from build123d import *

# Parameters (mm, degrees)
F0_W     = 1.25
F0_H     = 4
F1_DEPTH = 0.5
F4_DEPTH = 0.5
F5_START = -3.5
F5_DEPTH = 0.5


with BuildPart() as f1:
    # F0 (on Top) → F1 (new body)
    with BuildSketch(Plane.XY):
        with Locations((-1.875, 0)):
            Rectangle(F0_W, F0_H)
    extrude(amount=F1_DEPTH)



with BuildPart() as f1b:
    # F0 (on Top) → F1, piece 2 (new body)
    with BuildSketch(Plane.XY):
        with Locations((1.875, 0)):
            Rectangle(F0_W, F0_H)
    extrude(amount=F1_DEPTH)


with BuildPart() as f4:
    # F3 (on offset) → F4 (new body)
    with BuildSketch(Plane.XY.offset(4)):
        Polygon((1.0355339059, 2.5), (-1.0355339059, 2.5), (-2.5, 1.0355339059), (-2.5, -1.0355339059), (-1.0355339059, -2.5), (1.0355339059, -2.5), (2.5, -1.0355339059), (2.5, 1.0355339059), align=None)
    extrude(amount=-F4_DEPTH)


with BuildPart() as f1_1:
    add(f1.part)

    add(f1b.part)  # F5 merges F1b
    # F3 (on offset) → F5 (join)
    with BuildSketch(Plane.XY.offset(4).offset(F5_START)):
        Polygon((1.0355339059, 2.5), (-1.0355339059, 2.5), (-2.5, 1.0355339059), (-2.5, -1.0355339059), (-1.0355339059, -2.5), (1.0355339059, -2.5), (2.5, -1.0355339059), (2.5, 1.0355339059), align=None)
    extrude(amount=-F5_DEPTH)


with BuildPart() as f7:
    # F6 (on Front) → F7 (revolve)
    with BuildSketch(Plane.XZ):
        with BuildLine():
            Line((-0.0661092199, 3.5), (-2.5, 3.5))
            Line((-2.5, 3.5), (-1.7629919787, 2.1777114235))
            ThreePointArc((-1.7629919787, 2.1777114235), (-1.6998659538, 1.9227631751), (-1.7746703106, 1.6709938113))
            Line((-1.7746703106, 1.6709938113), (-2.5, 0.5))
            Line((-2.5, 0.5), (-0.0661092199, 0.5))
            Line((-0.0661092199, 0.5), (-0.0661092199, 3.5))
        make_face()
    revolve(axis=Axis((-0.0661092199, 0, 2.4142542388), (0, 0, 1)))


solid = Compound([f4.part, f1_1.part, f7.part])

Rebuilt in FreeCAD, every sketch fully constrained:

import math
import FreeCAD as App
import Part
import Sketcher

V = App.Vector


def add_polygon(sketch, points):
    """Adds a closed chain of lines whose ends are joined by coincident constraints."""
    first, n = sketch.GeometryCount, len(points)
    for a, b in zip(points, points[1:] + points[:1]):
        sketch.addGeometry(Part.LineSegment(App.Vector(*a, 0), App.Vector(*b, 0)), False)
    for i in range(n):
        sketch.addConstraint(Sketcher.Constraint("Coincident", first + i, 2, first + (i + 1) % n, 1))

doc = App.newDocument("Part")
body = doc.addObject("PartDesign::Body", "Body")

sketch1 = body.newObject("Sketcher::SketchObject", "Sketch")
sketch1.AttachmentSupport = (doc.getObject("XY_Plane"), [""])
sketch1.MapMode = "FlatFace"
add_polygon(sketch1, [(-2.5, 2), (-2.5, -2), (-1.2, -2), (-1.2, 2)])
sketch1.addConstraint(Sketcher.Constraint("Vertical", 0))
sketch1.addConstraint(Sketcher.Constraint("Horizontal", 1))
sketch1.addConstraint(Sketcher.Constraint("Vertical", 2))
sketch1.addConstraint(Sketcher.Constraint("Horizontal", 3))
sketch1.addConstraint(Sketcher.Constraint("DistanceY", 0, 2, 0, 1, 4.0))
sketch1.addConstraint(Sketcher.Constraint("DistanceY", 0, 2, -1, 1, 2.0))
sketch1.addConstraint(Sketcher.Constraint("DistanceX", 1, 1, 1, 2, 1.25))
sketch1.addConstraint(Sketcher.Constraint("DistanceX", 0, 2, -1, 1, 2.5))
pad1 = body.newObject("PartDesign::Pad", "Pad")
pad1.Profile = sketch1
pad1.Length = 0.5
body2 = doc.addObject("PartDesign::Body", "Body001")

sketch2 = body2.newObject("Sketcher::SketchObject", "Sketch001")
sketch2.AttachmentSupport = (doc.getObject("XY_Plane001"), [""])
sketch2.MapMode = "FlatFace"
add_polygon(sketch2, [(1.2, 2), (1.2, -2), (2.5, -2), (2.5, 2)])
sketch2.addConstraint(Sketcher.Constraint("Vertical", 0))
sketch2.addConstraint(Sketcher.Constraint("Horizontal", 1))
sketch2.addConstraint(Sketcher.Constraint("Vertical", 2))
sketch2.addConstraint(Sketcher.Constraint("Horizontal", 3))
sketch2.addConstraint(Sketcher.Constraint("DistanceY", 0, 2, 0, 1, 4.0))
sketch2.addConstraint(Sketcher.Constraint("DistanceY", 0, 2, -1, 1, 2.0))
sketch2.addConstraint(Sketcher.Constraint("DistanceX", 1, 1, 1, 2, 1.25))
sketch2.addConstraint(Sketcher.Constraint("DistanceX", -1, 1, 1, 2, 2.5))
pad2 = body2.newObject("PartDesign::Pad", "Pad001")
pad2.Profile = sketch2
pad2.Length = 0.5
body3 = doc.addObject("PartDesign::Body", "Body002")

sketch3 = body3.newObject("Sketcher::SketchObject", "Sketch002")
sketch3.AttachmentSupport = (doc.getObject("XY_Plane002"), [""])
sketch3.MapMode = "FlatFace"
sketch3.AttachmentOffset = App.Placement(V(0, 0, 4), App.Rotation())
add_polygon(sketch3, [(1, 2.5), (-1, 2.5), (-2.5, 1), (-2.5, -1), (-1, -2.5), (1, -2.5), (2.5, -1), (2.5, 1)])
sketch3.addConstraint(Sketcher.Constraint("Horizontal", 0))
sketch3.addConstraint(Sketcher.Constraint("Vertical", 2))
sketch3.addConstraint(Sketcher.Constraint("Horizontal", 4))
sketch3.addConstraint(Sketcher.Constraint("Vertical", 6))
sketch3.addConstraint(Sketcher.Constraint("Symmetric", 0, 2, 4, 2, -1, 1))
sketch3.addConstraint(Sketcher.Constraint("Symmetric", 1, 2, 5, 2, -1, 1))
sketch3.addConstraint(Sketcher.Constraint("Perpendicular", 1, 3))
sketch3.addConstraint(Sketcher.Constraint("Perpendicular", 5, 7))
sketch3.addConstraint(Sketcher.Constraint("Horizontal", 2, 2, 5, 2))
sketch3.addConstraint(Sketcher.Constraint("Horizontal", 1, 2, 6, 2))
sketch3.addConstraint(Sketcher.Constraint("Vertical", 0, 2, 3, 2))
sketch3.addConstraint(Sketcher.Constraint("Equal", 4, 2))
sketch3.addConstraint(Sketcher.Constraint("DistanceY", 3, 2, 0, 2, 5.0))
sketch3.addConstraint(Sketcher.Constraint("DistanceX", 0, 2, 0, 1, 2.071068))
pad3 = body3.newObject("PartDesign::Pad", "Pad002")
pad3.Profile = sketch3
pad3.Length = 0.5
pad3.Reversed = True
body.AllowCompound = True
doc.recompute()

boolean = body.newObject("PartDesign::Boolean", "Boolean")
boolean.Type = "Fuse"
boolean.addObjects([body2])

sketch4 = body.newObject("Sketcher::SketchObject", "Sketch003")
sketch4.AttachmentSupport = (doc.getObject("XY_Plane"), [""])
sketch4.MapMode = "FlatFace"
sketch4.AttachmentOffset = App.Placement(V(0, 0, 0.5), App.Rotation())
add_polygon(sketch4, [(1, 2.5), (-1, 2.5), (-2.5, 1), (-2.5, -1), (-1, -2.5), (1, -2.5), (2.5, -1), (2.5, 1)])
sketch4.addConstraint(Sketcher.Constraint("Horizontal", 0))
sketch4.addConstraint(Sketcher.Constraint("Vertical", 2))
sketch4.addConstraint(Sketcher.Constraint("Horizontal", 4))
sketch4.addConstraint(Sketcher.Constraint("Vertical", 6))
sketch4.addConstraint(Sketcher.Constraint("Symmetric", 0, 2, 4, 2, -1, 1))
sketch4.addConstraint(Sketcher.Constraint("Symmetric", 1, 2, 5, 2, -1, 1))
sketch4.addConstraint(Sketcher.Constraint("Perpendicular", 1, 3))
sketch4.addConstraint(Sketcher.Constraint("Perpendicular", 5, 7))
sketch4.addConstraint(Sketcher.Constraint("Horizontal", 2, 2, 5, 2))
sketch4.addConstraint(Sketcher.Constraint("Horizontal", 1, 2, 6, 2))
sketch4.addConstraint(Sketcher.Constraint("Vertical", 0, 2, 3, 2))
sketch4.addConstraint(Sketcher.Constraint("Equal", 4, 2))
sketch4.addConstraint(Sketcher.Constraint("DistanceY", 3, 2, 0, 2, 5.0))
sketch4.addConstraint(Sketcher.Constraint("DistanceX", 0, 2, 0, 1, 2.071068))
pad4 = body.newObject("PartDesign::Pad", "Pad003")
pad4.Profile = sketch4
pad4.Length = 0.5
pad4.Reversed = True
body4 = doc.addObject("PartDesign::Body", "Body003")

sketch5 = body4.newObject("Sketcher::SketchObject", "Sketch004")
sketch5.AttachmentSupport = (doc.getObject("XZ_Plane003"), [""])
sketch5.MapMode = "FlatFace"
sketch5.addGeometry(Part.LineSegment(V(-0.1, 3.5, 0), V(-2.5, 3.5, 0)), False)
sketch5.addGeometry(Part.LineSegment(V(-2.5, 3.5, 0), V(-1.8, 2.2, 0)), False)
sketch5.addGeometry(Part.ArcOfCircle(Part.Circle(V(-2.2, 1.9, 0), V(0, 0, 1), 0.5), math.radians(-32), math.radians(29)), False)
sketch5.addGeometry(Part.LineSegment(V(-1.8, 1.7, 0), V(-2.5, 0.5, 0)), False)
sketch5.addGeometry(Part.LineSegment(V(-2.5, 0.5, 0), V(-0.1, 0.5, 0)), False)
sketch5.addGeometry(Part.LineSegment(V(-0.1, 0.5, 0), V(-0.1, 3.5, 0)), False)
sketch5.addGeometry(Part.LineSegment(V(-0.1, 0.5, 0), V(-0.1, 3.5, 0)), True)
sketch5.addConstraint(Sketcher.Constraint("Coincident", 0, 2, 1, 1))
sketch5.addConstraint(Sketcher.Constraint("Tangent", 1, 2, 2, 2))
sketch5.addConstraint(Sketcher.Constraint("Tangent", 2, 1, 3, 1))
sketch5.addConstraint(Sketcher.Constraint("Coincident", 3, 2, 4, 1))
sketch5.addConstraint(Sketcher.Constraint("Coincident", 4, 2, 5, 1))
sketch5.addConstraint(Sketcher.Constraint("Coincident", 5, 2, 0, 1))
sketch5.addConstraint(Sketcher.Constraint("Horizontal", 0))
sketch5.addConstraint(Sketcher.Constraint("Horizontal", 4))
sketch5.addConstraint(Sketcher.Constraint("Vertical", 5))
sketch5.addConstraint(Sketcher.Constraint("Vertical", 6))
sketch5.addConstraint(Sketcher.Constraint("Coincident", 6, 1, 4, 2))
sketch5.addConstraint(Sketcher.Constraint("Horizontal", 0, 2, 6, 2))
sketch5.addConstraint(Sketcher.Constraint("Vertical", 0, 2, 3, 2))
sketch5.addConstraint(Sketcher.Constraint("Radius", 2, 0.5))
sketch5.addConstraint(Sketcher.Constraint("DistanceY", 5, 1, 5, 2, 3.0))
sketch5.addConstraint(Sketcher.Constraint("DistanceX", 0, 2, -1, 1, 2.5))
sketch5.addConstraint(Sketcher.Constraint("DistanceY", -1, 1, 0, 2, 3.5))
sketch5.addConstraint(Sketcher.Constraint("DistanceX", 0, 2, 0, 1, 2.433891))
sketch5.addConstraint(Sketcher.Constraint("DistanceX", 1, 2, -1, 1, 1.762992))
sketch5.addConstraint(Sketcher.Constraint("DistanceY", -1, 1, 1, 2, 2.177711))
revolution = body4.newObject("PartDesign::Revolution", "Revolution")
revolution.Profile = sketch5
revolution.ReferenceAxis = (sketch5, ["Axis0"])
revolution.Angle = 360

doc.recompute()
